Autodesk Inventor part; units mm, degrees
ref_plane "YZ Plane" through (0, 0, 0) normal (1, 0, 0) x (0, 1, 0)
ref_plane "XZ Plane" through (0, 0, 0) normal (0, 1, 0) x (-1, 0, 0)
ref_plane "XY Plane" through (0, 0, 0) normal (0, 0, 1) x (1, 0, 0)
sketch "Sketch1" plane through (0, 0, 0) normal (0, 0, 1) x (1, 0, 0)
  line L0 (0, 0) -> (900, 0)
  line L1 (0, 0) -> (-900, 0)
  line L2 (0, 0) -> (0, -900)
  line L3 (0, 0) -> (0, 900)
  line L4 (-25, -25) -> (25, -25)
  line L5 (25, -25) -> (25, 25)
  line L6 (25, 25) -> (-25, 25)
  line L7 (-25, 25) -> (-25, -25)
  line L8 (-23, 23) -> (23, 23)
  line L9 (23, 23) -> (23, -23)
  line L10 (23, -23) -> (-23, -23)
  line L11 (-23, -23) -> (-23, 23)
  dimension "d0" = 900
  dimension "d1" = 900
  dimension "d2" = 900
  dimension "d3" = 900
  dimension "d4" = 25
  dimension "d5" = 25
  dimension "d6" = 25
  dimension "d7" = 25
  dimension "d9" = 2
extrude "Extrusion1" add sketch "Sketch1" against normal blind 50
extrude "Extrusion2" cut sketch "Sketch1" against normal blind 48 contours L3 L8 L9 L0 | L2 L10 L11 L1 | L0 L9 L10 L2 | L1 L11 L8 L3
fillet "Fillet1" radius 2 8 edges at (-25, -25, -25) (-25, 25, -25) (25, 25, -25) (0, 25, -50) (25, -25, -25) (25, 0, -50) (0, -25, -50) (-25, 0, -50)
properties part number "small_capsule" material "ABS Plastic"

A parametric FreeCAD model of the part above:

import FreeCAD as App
import Part
import Sketcher

V = App.Vector


def edges_at(feature, points):
    """Names of the edges that pass closest to the given points."""
    edges = feature.Shape.Edges
    near = lambda p: min(range(len(edges)), key=lambda i: edges[i].distToShape(Part.Vertex(*p))[0])
    return sorted({f"Edge{near(p) + 1}" for p in points})


def add_polygon(sketch, points):
    """Adds a closed chain of lines whose ends are joined by coincident constraints."""
    first, n = sketch.GeometryCount, len(points)
    for a, b in zip(points, points[1:] + points[:1]):
        sketch.addGeometry(Part.LineSegment(App.Vector(*a, 0), App.Vector(*b, 0)), False)
    for i in range(n):
        sketch.addConstraint(Sketcher.Constraint("Coincident", first + i, 2, first + (i + 1) % n, 1))

doc = App.newDocument("Part")
body = doc.addObject("PartDesign::Body", "Body")

# Sketch on XY plane
sketch1 = body.newObject("Sketcher::SketchObject", "Sketch")
sketch1.AttachmentSupport = (doc.getObject("XY_Plane"), [""])
sketch1.MapMode = "FlatFace"
add_polygon(sketch1, [(25, 25), (-25, 25), (-25, -25), (25, -25)])  # lines 0-3
sketch1.addConstraint([
    Sketcher.Constraint("Horizontal", 0),
    Sketcher.Constraint("Vertical", 1),
    Sketcher.Constraint("Horizontal", 2),
    Sketcher.Constraint("Vertical", 3),
    Sketcher.Constraint("Symmetric", 0, 2, 2, 2, -1, 1),
    Sketcher.Constraint("Equal", 2, 1),
    Sketcher.Constraint("DistanceX", 0, 2, -1, 1, 25.0),
])
pad1 = body.newObject("PartDesign::Pad", "Pad")
pad1.Profile = sketch1
pad1.Length = 50
pad1.Reversed = True

# Sketch on XY plane
sketch2 = body.newObject("Sketcher::SketchObject", "Sketch001")
sketch2.AttachmentSupport = (doc.getObject("XY_Plane"), [""])
sketch2.MapMode = "FlatFace"
add_polygon(sketch2, [(23, 23), (-23, 23), (-23, -23), (23, -23)])  # lines 0-3
sketch2.addConstraint([
    Sketcher.Constraint("Horizontal", 0),
    Sketcher.Constraint("Vertical", 1),
    Sketcher.Constraint("Horizontal", 2),
    Sketcher.Constraint("Vertical", 3),
    Sketcher.Constraint("Symmetric", 0, 2, 2, 2, -1, 1),
    Sketcher.Constraint("Equal", 2, 1),
    Sketcher.Constraint("DistanceX", 0, 2, 0, 1, 46.0),
])
pocket1 = body.newObject("PartDesign::Pocket", "Pocket")
pocket1.Profile = sketch2
pocket1.Length = 48
doc.recompute()

fillet = body.newObject("PartDesign::Fillet", "Fillet")
fillet.Base = (pocket1, edges_at(pocket1, [
    (-25, -25, -25),
    (-25, 25, -25),
    (25, 25, -25),
    (0, 25, -50),
    (25, -25, -25),
    (25, 0, -50),
    (0, -25, -50),
    (-25, 0, -50),
]))
fillet.Radius = 2

doc.recompute()
